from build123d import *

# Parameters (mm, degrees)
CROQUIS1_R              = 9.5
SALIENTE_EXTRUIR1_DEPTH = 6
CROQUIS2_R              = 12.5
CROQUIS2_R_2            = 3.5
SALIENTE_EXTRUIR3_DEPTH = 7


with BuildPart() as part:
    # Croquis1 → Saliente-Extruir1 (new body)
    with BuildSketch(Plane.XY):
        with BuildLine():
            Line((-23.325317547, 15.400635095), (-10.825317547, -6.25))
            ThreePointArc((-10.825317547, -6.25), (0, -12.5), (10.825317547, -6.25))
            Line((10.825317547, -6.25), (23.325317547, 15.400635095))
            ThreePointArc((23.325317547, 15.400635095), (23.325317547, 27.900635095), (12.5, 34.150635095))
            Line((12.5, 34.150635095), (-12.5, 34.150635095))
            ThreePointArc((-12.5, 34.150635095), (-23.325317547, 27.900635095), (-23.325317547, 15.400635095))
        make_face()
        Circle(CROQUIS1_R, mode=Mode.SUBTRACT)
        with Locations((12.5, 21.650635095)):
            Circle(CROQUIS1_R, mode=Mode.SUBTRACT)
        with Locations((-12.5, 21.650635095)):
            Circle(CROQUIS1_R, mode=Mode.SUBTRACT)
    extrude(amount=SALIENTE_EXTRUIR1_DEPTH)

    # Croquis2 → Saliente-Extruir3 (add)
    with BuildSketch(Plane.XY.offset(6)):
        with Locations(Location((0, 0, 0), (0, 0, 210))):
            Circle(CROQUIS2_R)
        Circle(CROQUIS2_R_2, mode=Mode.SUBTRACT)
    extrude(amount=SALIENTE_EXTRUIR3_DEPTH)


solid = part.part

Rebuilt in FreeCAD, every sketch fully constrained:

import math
import FreeCAD as App
import Part
import Sketcher
from FreeCAD import Vector
Q = App.Units.Quantity

doc = App.newDocument("Part")
body = doc.addObject("PartDesign::Body", "Body")

# Sketch on XY plane
sketch1 = body.newObject("Sketcher::SketchObject", "Sketch")
sketch1.AttachmentSupport = (doc.getObject("XY_Plane"), [""])
sketch1.MapMode = "FlatFace"
sketch1.addGeometry(Part.LineSegment(Vector(-23, 15, 0), Vector(-11, -6, 0)), False)
sketch1.addGeometry(Part.ArcOfCircle(Part.Circle(Vector(0, 0, 0), Vector(0, 0, 1), 12), math.radians(-150), math.radians(-30)), False)
sketch1.addGeometry(Part.LineSegment(Vector(11, -6, 0), Vector(23, 15, 0)), False)
sketch1.addGeometry(Part.ArcOfCircle(Part.Circle(Vector(12, 22, 0), Vector(0, 0, 1), 12), math.radians(-30), math.radians(90)), False)
sketch1.addGeometry(Part.LineSegment(Vector(12, 34, 0), Vector(-12, 34, 0)), False)
sketch1.addGeometry(Part.ArcOfCircle(Part.Circle(Vector(-12, 22, 0), Vector(0, 0, 1), 12), math.radians(90), math.radians(210)), False)
sketch1.addGeometry(Part.Circle(Vector(0, 0, 0), Vector(0, 0, 1), 10), False)
sketch1.addGeometry(Part.Circle(Vector(-12, 22, 0), Vector(0, 0, 1), 10), False)
sketch1.addGeometry(Part.Circle(Vector(12, 22, 0), Vector(0, 0, 1), 10), False)
sketch1.addConstraint(Sketcher.Constraint("Tangent", 0, 2, 1, 1))
sketch1.addConstraint(Sketcher.Constraint("Tangent", 1, 2, 2, 1))
sketch1.addConstraint(Sketcher.Constraint("Tangent", 2, 2, 3, 1))
sketch1.addConstraint(Sketcher.Constraint("Tangent", 3, 2, 4, 1))
sketch1.addConstraint(Sketcher.Constraint("Tangent", 4, 2, 5, 1))
sketch1.addConstraint(Sketcher.Constraint("Tangent", 5, 2, 0, 1))
sketch1.addConstraint(Sketcher.Constraint("Horizontal", 4))
sketch1.addConstraint(Sketcher.Constraint("Coincident", 1, 3, -1, 1))
sketch1.addConstraint(Sketcher.Constraint("Coincident", 6, 3, -1, 1))
sketch1.addConstraint(Sketcher.Constraint("Coincident", 7, 3, 5, 3))
sketch1.addConstraint(Sketcher.Constraint("Coincident", 8, 3, 3, 3))
sketch1.addConstraint(Sketcher.Constraint("Equal", 1, 3))
sketch1.addConstraint(Sketcher.Constraint("Equal", 3, 5))
sketch1.addConstraint(Sketcher.Constraint("Equal", 6, 7))
sketch1.addConstraint(Sketcher.Constraint("Equal", 7, 8))
sketch1.addConstraint(Sketcher.Constraint("Horizontal", 0, 2, 1, 2))
sketch1.addConstraint(Sketcher.Constraint("Diameter", 6, 19.0))
sketch1.addConstraint(Sketcher.Constraint("Radius", 1, 12.5))
sketch1.addConstraint(Sketcher.Constraint("DistanceX", 4, 2, 4, 1, 25.0))
sketch1.addConstraint(Sketcher.Constraint("Angle", 0, Q("-60 deg")))
pad1 = body.newObject("PartDesign::Pad", "Pad")
pad1.Profile = sketch1
pad1.Length = 6

# Sketch on XY plane
sketch2 = body.newObject("Sketcher::SketchObject", "Sketch001")
sketch2.AttachmentSupport = (doc.getObject("XY_Plane"), [""])
sketch2.MapMode = "FlatFace"
sketch2.AttachmentOffset = App.Placement(Vector(0, 0, 6), App.Rotation())
sketch2.addGeometry(Part.Circle(Vector(0, 0, 0), Vector(0, 0, 1), 12.5), False)
sketch2.addGeometry(Part.Circle(Vector(0, 0, 0), Vector(0, 0, 1), 3.5), False)
sketch2.addConstraint(Sketcher.Constraint("Coincident", 0, 3, -1, 1))
sketch2.addConstraint(Sketcher.Constraint("Coincident", 1, 3, -1, 1))
sketch2.addConstraint(Sketcher.Constraint("Diameter", 0, 25.0))
sketch2.addConstraint(Sketcher.Constraint("Diameter", 1, 7.0))
pad2 = body.newObject("PartDesign::Pad", "Pad001")
pad2.Profile = sketch2
pad2.Length = 7

doc.recompute()
